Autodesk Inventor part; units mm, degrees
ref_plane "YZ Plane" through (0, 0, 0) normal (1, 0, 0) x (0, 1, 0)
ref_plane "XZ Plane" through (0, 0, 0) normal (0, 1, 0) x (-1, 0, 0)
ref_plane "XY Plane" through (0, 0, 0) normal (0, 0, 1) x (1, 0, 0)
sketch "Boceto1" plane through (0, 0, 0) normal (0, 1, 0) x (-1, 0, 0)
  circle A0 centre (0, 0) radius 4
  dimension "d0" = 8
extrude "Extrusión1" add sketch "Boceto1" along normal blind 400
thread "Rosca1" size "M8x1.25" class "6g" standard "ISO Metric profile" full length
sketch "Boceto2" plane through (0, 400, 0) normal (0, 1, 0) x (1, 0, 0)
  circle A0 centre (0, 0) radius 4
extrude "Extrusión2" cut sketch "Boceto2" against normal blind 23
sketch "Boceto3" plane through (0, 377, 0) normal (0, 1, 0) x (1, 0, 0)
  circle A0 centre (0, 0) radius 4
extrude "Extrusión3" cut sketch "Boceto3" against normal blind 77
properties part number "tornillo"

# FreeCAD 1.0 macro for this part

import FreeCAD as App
import Part
import Sketcher

V = App.Vector

doc = App.newDocument("Part")
body = doc.addObject("PartDesign::Body", "Body")

# Sketch on XZ plane
sketch1 = body.newObject("Sketcher::SketchObject", "Sketch")
sketch1.AttachmentSupport = (doc.getObject("XZ_Plane"), [""])
sketch1.MapMode = "FlatFace"
sketch1.addGeometry(Part.Circle(V(0, 0, 0), V(0, 0, 1), 4), False)
sketch1.addConstraint([
    Sketcher.Constraint("Coincident", 0, 3, -1, 1),
    Sketcher.Constraint("Diameter", 0, 8.0),
])
pad1 = body.newObject("PartDesign::Pad", "Pad")
pad1.Profile = sketch1
pad1.Length = 400
pad1.Reversed = True

# Sketch on XZ plane
sketch2 = body.newObject("Sketcher::SketchObject", "Sketch001")
sketch2.AttachmentSupport = (doc.getObject("XZ_Plane"), [""])
sketch2.MapMode = "FlatFace"
sketch2.AttachmentOffset = App.Placement(V(0, 0, -400), App.Rotation())
sketch2.addGeometry(Part.Circle(V(0, 0, 0), V(0, 0, 1), 4), False)
sketch2.addConstraint([
    Sketcher.Constraint("Coincident", 0, 3, -1, 1),
    Sketcher.Constraint("Diameter", 0, 8.0),
])
pocket1 = body.newObject("PartDesign::Pocket", "Pocket")
pocket1.Profile = sketch2
pocket1.Length = 23
pocket1.Reversed = True

# Sketch on XZ plane
sketch3 = body.newObject("Sketcher::SketchObject", "Sketch002")
sketch3.AttachmentSupport = (doc.getObject("XZ_Plane"), [""])
sketch3.MapMode = "FlatFace"
sketch3.AttachmentOffset = App.Placement(V(0, 0, -377), App.Rotation())
sketch3.addGeometry(Part.Circle(V(0, 0, 0), V(0, 0, 1), 4), False)
sketch3.addConstraint([
    Sketcher.Constraint("Coincident", 0, 3, -1, 1),
    Sketcher.Constraint("Diameter", 0, 8.0),
])
pocket2 = body.newObject("PartDesign::Pocket", "Pocket001")
pocket2.Profile = sketch3
pocket2.Length = 77
pocket2.Reversed = True

doc.recompute()
